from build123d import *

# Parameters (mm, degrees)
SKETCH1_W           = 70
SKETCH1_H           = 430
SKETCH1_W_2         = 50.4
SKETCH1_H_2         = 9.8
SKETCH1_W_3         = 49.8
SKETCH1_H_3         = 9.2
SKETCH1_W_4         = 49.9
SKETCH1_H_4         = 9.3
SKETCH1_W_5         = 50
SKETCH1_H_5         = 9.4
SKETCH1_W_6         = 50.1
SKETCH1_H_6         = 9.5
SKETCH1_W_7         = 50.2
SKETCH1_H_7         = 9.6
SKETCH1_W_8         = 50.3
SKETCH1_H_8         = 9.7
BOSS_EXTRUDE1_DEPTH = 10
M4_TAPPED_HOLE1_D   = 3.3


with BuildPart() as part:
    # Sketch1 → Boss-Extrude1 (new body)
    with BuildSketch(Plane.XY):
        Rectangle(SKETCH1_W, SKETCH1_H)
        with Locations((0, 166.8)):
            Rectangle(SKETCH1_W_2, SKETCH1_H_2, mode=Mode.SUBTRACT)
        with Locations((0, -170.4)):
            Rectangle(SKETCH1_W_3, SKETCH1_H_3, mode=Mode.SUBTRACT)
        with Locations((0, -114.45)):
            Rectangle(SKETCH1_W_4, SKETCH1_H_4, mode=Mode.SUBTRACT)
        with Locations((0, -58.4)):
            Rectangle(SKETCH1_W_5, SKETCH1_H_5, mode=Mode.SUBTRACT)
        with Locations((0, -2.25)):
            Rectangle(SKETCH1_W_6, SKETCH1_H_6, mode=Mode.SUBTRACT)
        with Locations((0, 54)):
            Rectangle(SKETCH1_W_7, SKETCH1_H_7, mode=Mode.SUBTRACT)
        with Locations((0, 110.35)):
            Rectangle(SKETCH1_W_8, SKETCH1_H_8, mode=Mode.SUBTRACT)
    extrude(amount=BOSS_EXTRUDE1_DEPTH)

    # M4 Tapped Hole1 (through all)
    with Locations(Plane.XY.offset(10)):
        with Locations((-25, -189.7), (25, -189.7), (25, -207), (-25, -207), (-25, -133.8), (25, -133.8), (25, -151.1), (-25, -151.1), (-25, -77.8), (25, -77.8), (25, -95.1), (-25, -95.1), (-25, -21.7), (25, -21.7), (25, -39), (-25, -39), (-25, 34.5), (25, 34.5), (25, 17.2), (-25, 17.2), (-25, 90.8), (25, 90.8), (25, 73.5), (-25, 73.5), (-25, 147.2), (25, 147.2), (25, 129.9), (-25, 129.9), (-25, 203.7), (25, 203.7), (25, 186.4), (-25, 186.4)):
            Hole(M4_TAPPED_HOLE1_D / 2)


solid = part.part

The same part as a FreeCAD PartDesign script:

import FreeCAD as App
import Part
import Sketcher
Q = App.Units.Quantity


def add_polygon(sketch, points):
    """Adds a closed chain of lines whose ends are joined by coincident constraints."""
    first, n = sketch.GeometryCount, len(points)
    for a, b in zip(points, points[1:] + points[:1]):
        sketch.addGeometry(Part.LineSegment(App.Vector(*a, 0), App.Vector(*b, 0)), False)
    for i in range(n):
        sketch.addConstraint(Sketcher.Constraint("Coincident", first + i, 2, first + (i + 1) % n, 1))

doc = App.newDocument("Part")
body = doc.addObject("PartDesign::Body", "Body")

sketch1 = body.newObject("Sketcher::SketchObject", "Sketch")
sketch1.AttachmentSupport = (doc.getObject("XY_Plane"), [""])
sketch1.MapMode = "FlatFace"
add_polygon(sketch1, [(-35, 215), (-35, -215), (35, -215), (35, 215)])
add_polygon(sketch1, [(24.9, -175), (-24.9, -175), (-24.9, -165.8), (24.9, -165.8)])
add_polygon(sketch1, [(24.95, -119.1), (-24.95, -119.1), (-24.95, -109.8), (24.95, -109.8)])
add_polygon(sketch1, [(25, -63.1), (-25, -63.1), (-25, -53.7), (25, -53.7)])
add_polygon(sketch1, [(25.05, -7), (-25.05, -7), (-25.05, 2.5), (25.05, 2.5)])
add_polygon(sketch1, [(25.1, 49.2), (-25.1, 49.2), (-25.1, 58.8), (25.1, 58.8)])
add_polygon(sketch1, [(25.15, 105.5), (-25.15, 105.5), (-25.15, 115.2), (25.15, 115.2)])
add_polygon(sketch1, [(25.2, 161.9), (-25.2, 161.9), (-25.2, 171.7), (25.2, 171.7)])
sketch1.addConstraint(Sketcher.Constraint("Vertical", 0))
sketch1.addConstraint(Sketcher.Constraint("Horizontal", 1))
sketch1.addConstraint(Sketcher.Constraint("Vertical", 2))
sketch1.addConstraint(Sketcher.Constraint("Horizontal", 3))
sketch1.addConstraint(Sketcher.Constraint("Horizontal", 4))
sketch1.addConstraint(Sketcher.Constraint("Vertical", 5))
sketch1.addConstraint(Sketcher.Constraint("Horizontal", 6))
sketch1.addConstraint(Sketcher.Constraint("Vertical", 7))
sketch1.addConstraint(Sketcher.Constraint("Horizontal", 8))
sketch1.addConstraint(Sketcher.Constraint("Vertical", 9))
sketch1.addConstraint(Sketcher.Constraint("Horizontal", 10))
sketch1.addConstraint(Sketcher.Constraint("Vertical", 11))
sketch1.addConstraint(Sketcher.Constraint("Horizontal", 12))
sketch1.addConstraint(Sketcher.Constraint("Vertical", 13))
sketch1.addConstraint(Sketcher.Constraint("Horizontal", 14))
sketch1.addConstraint(Sketcher.Constraint("Vertical", 15))
sketch1.addConstraint(Sketcher.Constraint("Horizontal", 16))
sketch1.addConstraint(Sketcher.Constraint("Vertical", 17))
sketch1.addConstraint(Sketcher.Constraint("Horizontal", 18))
sketch1.addConstraint(Sketcher.Constraint("Vertical", 19))
sketch1.addConstraint(Sketcher.Constraint("Horizontal", 20))
sketch1.addConstraint(Sketcher.Constraint("Vertical", 21))
sketch1.addConstraint(Sketcher.Constraint("Horizontal", 22))
sketch1.addConstraint(Sketcher.Constraint("Vertical", 23))
sketch1.addConstraint(Sketcher.Constraint("Horizontal", 24))
sketch1.addConstraint(Sketcher.Constraint("Vertical", 25))
sketch1.addConstraint(Sketcher.Constraint("Horizontal", 26))
sketch1.addConstraint(Sketcher.Constraint("Vertical", 27))
sketch1.addConstraint(Sketcher.Constraint("Horizontal", 28))
sketch1.addConstraint(Sketcher.Constraint("Vertical", 29))
sketch1.addConstraint(Sketcher.Constraint("Horizontal", 30))
sketch1.addConstraint(Sketcher.Constraint("Vertical", 31))
sketch1.addConstraint(Sketcher.Constraint("Symmetric", 0, 2, 2, 2, -1, 1))
sketch1.addConstraint(Sketcher.Constraint("DistanceX", 1, 1, 1, 2, Q("70 mm")))
sketch1.addConstraint(Sketcher.Constraint("DistanceX", 12, 2, 12, 1, Q("50 mm")))
sketch1.addConstraint(Sketcher.Constraint("DistanceY", 0, 2, 0, 1, Q("430 mm")))
sketch1.addConstraint(Sketcher.Constraint("DistanceX", 4, 2, 4, 1, Q("49.8 mm")))
sketch1.addConstraint(Sketcher.Constraint("DistanceX", 8, 2, 8, 1, Q("49.9 mm")))
sketch1.addConstraint(Sketcher.Constraint("DistanceX", 16, 2, 16, 1, Q("50.1 mm")))
sketch1.addConstraint(Sketcher.Constraint("DistanceX", 20, 2, 20, 1, Q("50.2 mm")))
sketch1.addConstraint(Sketcher.Constraint("DistanceX", 24, 2, 24, 1, Q("50.3 mm")))
sketch1.addConstraint(Sketcher.Constraint("DistanceX", 28, 2, 28, 1, Q("50.4 mm")))
sketch1.addConstraint(Sketcher.Constraint("DistanceY", 5, 1, 5, 2, Q("9.2 mm")))
sketch1.addConstraint(Sketcher.Constraint("DistanceY", 9, 1, 9, 2, Q("9.3 mm")))
sketch1.addConstraint(Sketcher.Constraint("DistanceY", 13, 1, 13, 2, Q("9.4 mm")))
sketch1.addConstraint(Sketcher.Constraint("DistanceY", 17, 1, 17, 2, Q("9.5 mm")))
sketch1.addConstraint(Sketcher.Constraint("DistanceY", 21, 1, 21, 2, Q("9.6 mm")))
sketch1.addConstraint(Sketcher.Constraint("DistanceY", 25, 1, 25, 2, Q("9.7 mm")))
sketch1.addConstraint(Sketcher.Constraint("DistanceY", 29, 1, 29, 2, Q("9.8 mm")))
sketch1.addConstraint(Sketcher.Constraint("DistanceY", 4, 2, -1, 1, Q("175 mm")))
sketch1.addConstraint(Sketcher.Constraint("DistanceX", 12, 2, -1, 1, Q("25 mm")))
sketch1.addConstraint(Sketcher.Constraint("DistanceY", 16, 2, -1, 1, Q("7 mm")))
sketch1.addConstraint(Sketcher.Constraint("DistanceY", 5, 2, 9, 2, Q("56 mm")))
sketch1.addConstraint(Sketcher.Constraint("DistanceY", 8, 2, 12, 2, Q("56 mm")))
sketch1.addConstraint(Sketcher.Constraint("DistanceY", 17, 2, 24, 2, Q("103 mm")))
sketch1.addConstraint(Sketcher.Constraint("DistanceY", 20, 2, 25, 2, Q("66 mm")))
sketch1.addConstraint(Sketcher.Constraint("DistanceX", 4, 2, -1, 1, Q("24.9 mm")))
sketch1.addConstraint(Sketcher.Constraint("DistanceX", 20, 2, -1, 1, Q("25.1 mm")))
sketch1.addConstraint(Sketcher.Constraint("DistanceX", 28, 2, -1, 1, Q("25.2 mm")))
sketch1.addConstraint(Sketcher.Constraint("DistanceY", -1, 1, 28, 2, Q("161.9 mm")))
sketch1.addConstraint(Sketcher.Constraint("DistanceX", 16, 2, 9, 2, Q("0.1 mm")))
sketch1.addConstraint(Sketcher.Constraint("DistanceX", 24, 2, 17, 2, Q("0.1 mm")))
sketch1.addConstraint(Sketcher.Constraint("DistanceX", 8, 2, -1, 1, Q("24.95 mm")))
pad1 = body.newObject("PartDesign::Pad", "Pad")
pad1.Profile = sketch1
pad1.Length = 10

sketch2 = body.newObject("Sketcher::SketchObject", "Sketch001")
sketch2.AttachmentSupport = (doc.getObject("XY_Plane"), [""])
sketch2.MapMode = "FlatFace"
sketch2.AttachmentOffset = App.Placement(App.Vector(0, 0, 10), App.Rotation())
sketch2.addGeometry(Part.Circle(App.Vector(-25, -189.7, 0), App.Vector(0, 0, 1), 1.65), False)
sketch2.addGeometry(Part.Circle(App.Vector(25, -189.7, 0), App.Vector(0, 0, 1), 1.65), False)
sketch2.addGeometry(Part.Circle(App.Vector(25, -207, 0), App.Vector(0, 0, 1), 1.65), False)
sketch2.addGeometry(Part.Circle(App.Vector(-25, -207, 0), App.Vector(0, 0, 1), 1.65), False)
sketch2.addGeometry(Part.Circle(App.Vector(-25, -133.8, 0), App.Vector(0, 0, 1), 1.65), False)
sketch2.addGeometry(Part.Circle(App.Vector(25, -133.8, 0), App.Vector(0, 0, 1), 1.65), False)
sketch2.addGeometry(Part.Circle(App.Vector(25, -151.1, 0), App.Vector(0, 0, 1), 1.65), False)
sketch2.addGeometry(Part.Circle(App.Vector(-25, -151.1, 0), App.Vector(0, 0, 1), 1.65), False)
sketch2.addGeometry(Part.Circle(App.Vector(-25, -77.8, 0), App.Vector(0, 0, 1), 1.65), False)
sketch2.addGeometry(Part.Circle(App.Vector(25, -77.8, 0), App.Vector(0, 0, 1), 1.65), False)
sketch2.addGeometry(Part.Circle(App.Vector(25, -95.1, 0), App.Vector(0, 0, 1), 1.65), False)
sketch2.addGeometry(Part.Circle(App.Vector(-25, -95.1, 0), App.Vector(0, 0, 1), 1.65), False)
sketch2.addGeometry(Part.Circle(App.Vector(-25, -21.7, 0), App.Vector(0, 0, 1), 1.65), False)
sketch2.addGeometry(Part.Circle(App.Vector(25, -21.7, 0), App.Vector(0, 0, 1), 1.65), False)
sketch2.addGeometry(Part.Circle(App.Vector(25, -39, 0), App.Vector(0, 0, 1), 1.65), False)
sketch2.addGeometry(Part.Circle(App.Vector(-25, -39, 0), App.Vector(0, 0, 1), 1.65), False)
sketch2.addGeometry(Part.Circle(App.Vector(-25, 34.5, 0), App.Vector(0, 0, 1), 1.65), False)
sketch2.addGeometry(Part.Circle(App.Vector(25, 34.5, 0), App.Vector(0, 0, 1), 1.65), False)
sketch2.addGeometry(Part.Circle(App.Vector(25, 17.2, 0), App.Vector(0, 0, 1), 1.65), False)
sketch2.addGeometry(Part.Circle(App.Vector(-25, 17.2, 0), App.Vector(0, 0, 1), 1.65), False)
sketch2.addGeometry(Part.Circle(App.Vector(-25, 90.8, 0), App.Vector(0, 0, 1), 1.65), False)
sketch2.addGeometry(Part.Circle(App.Vector(25, 90.8, 0), App.Vector(0, 0, 1), 1.65), False)
sketch2.addGeometry(Part.Circle(App.Vector(25, 73.5, 0), App.Vector(0, 0, 1), 1.65), False)
sketch2.addGeometry(Part.Circle(App.Vector(-25, 73.5, 0), App.Vector(0, 0, 1), 1.65), False)
sketch2.addGeometry(Part.Circle(App.Vector(-25, 147.2, 0), App.Vector(0, 0, 1), 1.65), False)
sketch2.addGeometry(Part.Circle(App.Vector(25, 147.2, 0), App.Vector(0, 0, 1), 1.65), False)
sketch2.addGeometry(Part.Circle(App.Vector(25, 129.9, 0), App.Vector(0, 0, 1), 1.65), False)
sketch2.addGeometry(Part.Circle(App.Vector(-25, 129.9, 0), App.Vector(0, 0, 1), 1.65), False)
sketch2.addGeometry(Part.Circle(App.Vector(-25, 203.7, 0), App.Vector(0, 0, 1), 1.65), False)
sketch2.addGeometry(Part.Circle(App.Vector(25, 203.7, 0), App.Vector(0, 0, 1), 1.65), False)
sketch2.addGeometry(Part.Circle(App.Vector(25, 186.4, 0), App.Vector(0, 0, 1), 1.65), False)
sketch2.addGeometry(Part.Circle(App.Vector(-25, 186.4, 0), App.Vector(0, 0, 1), 1.65), False)
sketch2.addConstraint(Sketcher.Constraint("Equal", 0, 1))
sketch2.addConstraint(Sketcher.Constraint("Equal", 1, 2))
sketch2.addConstraint(Sketcher.Constraint("Equal", 2, 3))
sketch2.addConstraint(Sketcher.Constraint("Equal", 3, 4))
sketch2.addConstraint(Sketcher.Constraint("Equal", 4, 5))
sketch2.addConstraint(Sketcher.Constraint("Equal", 5, 6))
sketch2.addConstraint(Sketcher.Constraint("Equal", 6, 7))
sketch2.addConstraint(Sketcher.Constraint("Equal", 7, 8))
sketch2.addConstraint(Sketcher.Constraint("Equal", 8, 9))
sketch2.addConstraint(Sketcher.Constraint("Equal", 9, 10))
sketch2.addConstraint(Sketcher.Constraint("Equal", 10, 11))
sketch2.addConstraint(Sketcher.Constraint("Equal", 11, 12))
sketch2.addConstraint(Sketcher.Constraint("Equal", 12, 13))
sketch2.addConstraint(Sketcher.Constraint("Equal", 13, 14))
sketch2.addConstraint(Sketcher.Constraint("Equal", 14, 15))
sketch2.addConstraint(Sketcher.Constraint("Equal", 15, 16))
sketch2.addConstraint(Sketcher.Constraint("Equal", 16, 17))
sketch2.addConstraint(Sketcher.Constraint("Equal", 17, 18))
sketch2.addConstraint(Sketcher.Constraint("Equal", 18, 19))
sketch2.addConstraint(Sketcher.Constraint("Equal", 19, 20))
sketch2.addConstraint(Sketcher.Constraint("Equal", 20, 21))
sketch2.addConstraint(Sketcher.Constraint("Equal", 21, 22))
sketch2.addConstraint(Sketcher.Constraint("Equal", 22, 23))
sketch2.addConstraint(Sketcher.Constraint("Equal", 23, 24))
sketch2.addConstraint(Sketcher.Constraint("Equal", 24, 25))
sketch2.addConstraint(Sketcher.Constraint("Equal", 25, 26))
sketch2.addConstraint(Sketcher.Constraint("Equal", 26, 27))
sketch2.addConstraint(Sketcher.Constraint("Equal", 27, 28))
sketch2.addConstraint(Sketcher.Constraint("Equal", 28, 29))
sketch2.addConstraint(Sketcher.Constraint("Equal", 29, 30))
sketch2.addConstraint(Sketcher.Constraint("Equal", 30, 31))
sketch2.addConstraint(Sketcher.Constraint("Symmetric", 0, 3, 1, 3, -2))
sketch2.addConstraint(Sketcher.Constraint("Symmetric", 2, 3, 3, 3, -2))
sketch2.addConstraint(Sketcher.Constraint("Symmetric", 4, 3, 5, 3, -2))
sketch2.addConstraint(Sketcher.Constraint("Symmetric", 6, 3, 7, 3, -2))
sketch2.addConstraint(Sketcher.Constraint("Symmetric", 8, 3, 9, 3, -2))
sketch2.addConstraint(Sketcher.Constraint("Symmetric", 10, 3, 11, 3, -2))
sketch2.addConstraint(Sketcher.Constraint("Symmetric", 12, 3, 13, 3, -2))
sketch2.addConstraint(Sketcher.Constraint("Symmetric", 14, 3, 15, 3, -2))
sketch2.addConstraint(Sketcher.Constraint("Symmetric", 16, 3, 17, 3, -2))
sketch2.addConstraint(Sketcher.Constraint("Symmetric", 18, 3, 19, 3, -2))
sketch2.addConstraint(Sketcher.Constraint("Symmetric", 20, 3, 21, 3, -2))
sketch2.addConstraint(Sketcher.Constraint("Symmetric", 22, 3, 23, 3, -2))
sketch2.addConstraint(Sketcher.Constraint("Symmetric", 24, 3, 25, 3, -2))
sketch2.addConstraint(Sketcher.Constraint("Symmetric", 26, 3, 27, 3, -2))
sketch2.addConstraint(Sketcher.Constraint("Symmetric", 28, 3, 29, 3, -2))
sketch2.addConstraint(Sketcher.Constraint("Symmetric", 30, 3, 31, 3, -2))
sketch2.addConstraint(Sketcher.Constraint("Vertical", 1, 3, 2, 3))
sketch2.addConstraint(Sketcher.Constraint("Vertical", 3, 3, 4, 3))
sketch2.addConstraint(Sketcher.Constraint("Vertical", 5, 3, 6, 3))
sketch2.addConstraint(Sketcher.Constraint("Vertical", 7, 3, 8, 3))
sketch2.addConstraint(Sketcher.Constraint("Vertical", 9, 3, 10, 3))
sketch2.addConstraint(Sketcher.Constraint("Vertical", 11, 3, 12, 3))
sketch2.addConstraint(Sketcher.Constraint("Vertical", 13, 3, 14, 3))
sketch2.addConstraint(Sketcher.Constraint("Vertical", 15, 3, 16, 3))
sketch2.addConstraint(Sketcher.Constraint("Vertical", 17, 3, 18, 3))
sketch2.addConstraint(Sketcher.Constraint("Vertical", 19, 3, 20, 3))
sketch2.addConstraint(Sketcher.Constraint("Vertical", 21, 3, 22, 3))
sketch2.addConstraint(Sketcher.Constraint("Vertical", 23, 3, 24, 3))
sketch2.addConstraint(Sketcher.Constraint("Vertical", 25, 3, 26, 3))
sketch2.addConstraint(Sketcher.Constraint("Vertical", 27, 3, 28, 3))
sketch2.addConstraint(Sketcher.Constraint("Vertical", 29, 3, 30, 3))
sketch2.addConstraint(Sketcher.Constraint("Diameter", 0, Q("3.3 mm")))
sketch2.addConstraint(Sketcher.Constraint("DistanceX", 0, 3, -1, 1, Q("25 mm")))
sketch2.addConstraint(Sketcher.Constraint("DistanceY", 2, 3, -1, 1, Q("207 mm")))
sketch2.addConstraint(Sketcher.Constraint("DistanceY", 14, 3, -1, 1, Q("39 mm")))
sketch2.addConstraint(Sketcher.Constraint("DistanceY", 4, 3, 8, 3, Q("56 mm")))
sketch2.addConstraint(Sketcher.Constraint("DistanceY", 6, 3, 10, 3, Q("56 mm")))
sketch2.addConstraint(Sketcher.Constraint("DistanceY", 17, 3, 22, 3, Q("39 mm")))
sketch2.addConstraint(Sketcher.Constraint("DistanceY", 0, 3, -1, 1, Q("189.7 mm")))
sketch2.addConstraint(Sketcher.Constraint("DistanceY", 4, 3, -1, 1, Q("133.8 mm")))
sketch2.addConstraint(Sketcher.Constraint("DistanceY", 6, 3, -1, 1, Q("151.1 mm")))
sketch2.addConstraint(Sketcher.Constraint("DistanceY", 12, 3, -1, 1, Q("21.7 mm")))
sketch2.addConstraint(Sketcher.Constraint("DistanceY", -1, 1, 16, 3, Q("34.5 mm")))
sketch2.addConstraint(Sketcher.Constraint("DistanceY", -1, 1, 18, 3, Q("17.2 mm")))
sketch2.addConstraint(Sketcher.Constraint("DistanceY", -1, 1, 20, 3, Q("90.8 mm")))
sketch2.addConstraint(Sketcher.Constraint("DistanceY", -1, 1, 24, 3, Q("147.2 mm")))
sketch2.addConstraint(Sketcher.Constraint("DistanceY", -1, 1, 26, 3, Q("129.9 mm")))
sketch2.addConstraint(Sketcher.Constraint("DistanceY", -1, 1, 28, 3, Q("203.7 mm")))
sketch2.addConstraint(Sketcher.Constraint("DistanceY", -1, 1, 30, 3, Q("186.4 mm")))
doc.recompute()
hole = body.newObject("PartDesign::Hole", "Hole")
hole.Profile = sketch2
hole.ThreadType = "None"
hole.Diameter = 3.3
hole.DepthType = "ThroughAll"

doc.recompute()
